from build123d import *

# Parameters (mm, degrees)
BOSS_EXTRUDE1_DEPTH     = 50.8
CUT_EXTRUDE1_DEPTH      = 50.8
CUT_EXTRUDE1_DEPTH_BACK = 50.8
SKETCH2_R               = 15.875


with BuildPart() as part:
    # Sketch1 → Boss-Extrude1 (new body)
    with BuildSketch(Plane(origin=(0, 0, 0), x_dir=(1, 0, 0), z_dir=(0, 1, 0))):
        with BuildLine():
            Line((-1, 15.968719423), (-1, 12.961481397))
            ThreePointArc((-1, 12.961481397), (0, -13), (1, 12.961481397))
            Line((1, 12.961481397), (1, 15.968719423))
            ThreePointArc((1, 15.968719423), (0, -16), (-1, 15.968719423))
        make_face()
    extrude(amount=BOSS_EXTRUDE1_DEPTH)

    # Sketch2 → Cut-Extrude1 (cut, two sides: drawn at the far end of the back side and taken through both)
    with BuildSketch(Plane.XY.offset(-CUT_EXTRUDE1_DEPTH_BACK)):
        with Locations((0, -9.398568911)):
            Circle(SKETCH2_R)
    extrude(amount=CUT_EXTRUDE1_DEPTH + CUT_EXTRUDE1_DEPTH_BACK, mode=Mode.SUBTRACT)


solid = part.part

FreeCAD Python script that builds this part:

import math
import FreeCAD as App
import Part
import Sketcher

V = App.Vector
Q = App.Units.Quantity

doc = App.newDocument("Part")
params = doc.addObject("Spreadsheet::Sheet", "Params")
for row, (alias, value) in enumerate([
    ("sketch1_radius", "16 mm"),
    ("sketch1_radius2", "13 mm"),
    ("pad1_length", "50.8 mm"),
    ("sketch2_diameter", "31.75 mm"),
], start=1):
    params.set(f"A{row}", alias)
    params.set(f"B{row}", "=" + value)
    params.setAlias(f"B{row}", alias)

body = doc.addObject("PartDesign::Body", "Body")

sketch1 = doc.addObject("Sketcher::SketchObject", "Sketch")
body.addObject(sketch1)
sketch1.AttachmentSupport = (doc.XZ_Plane, [""])
sketch1.MapMode = "FlatFace"
sketch1.addGeometry(Part.LineSegment(V(-1, -13, 0), V(-1, -16, 0)), False)
sketch1.addGeometry(Part.ArcOfCircle(Part.Circle(V(0, 0, 0), V(0, 0, 1), 16), math.radians(-86), math.radians(266)), False)
sketch1.addGeometry(Part.LineSegment(V(1, -16, 0), V(1, -13, 0)), False)
sketch1.addGeometry(Part.ArcOfCircle(Part.Circle(V(0, 0, 0), V(0, 0, 1), 13), math.radians(-86), math.radians(266)), False)
sketch1.addConstraint(Sketcher.Constraint("Coincident", 0, 2, 1, 2))
sketch1.addConstraint(Sketcher.Constraint("Coincident", 1, 1, 2, 1))
sketch1.addConstraint(Sketcher.Constraint("Coincident", 2, 2, 3, 1))
sketch1.addConstraint(Sketcher.Constraint("Coincident", 3, 2, 0, 1))
sketch1.addConstraint(Sketcher.Constraint("Vertical", 0))
sketch1.addConstraint(Sketcher.Constraint("Vertical", 2))
sketch1.addConstraint(Sketcher.Constraint("Coincident", 1, 3, -1, 1))
sketch1.addConstraint(Sketcher.Constraint("Coincident", 3, 3, -1, 1))
sketch1.addConstraint(Sketcher.Constraint("Horizontal", 0, 2, 1, 1))
sketch1.addConstraint(Sketcher.Constraint("Radius", 1, Q("16 mm")))
sketch1.addConstraint(Sketcher.Constraint("Radius", 3, Q("13 mm")))
sketch1.addConstraint(Sketcher.Constraint("DistanceX", 0, 2, -1, 1, Q("1 mm")))
sketch1.setExpression("Constraints[9]", "Params.sketch1_radius")
sketch1.setExpression("Constraints[10]", "Params.sketch1_radius2")
pad1 = doc.addObject("PartDesign::Pad", "Pad")
body.addObject(pad1)
pad1.Profile = sketch1
pad1.setExpression("Length", "Params.pad1_length")
pad1.Reversed = True

sketch2 = doc.addObject("Sketcher::SketchObject", "Sketch001")
body.addObject(sketch2)
sketch2.AttachmentSupport = (doc.XY_Plane, [""])
sketch2.MapMode = "FlatFace"
sketch2.addGeometry(Part.Circle(V(0, -9, 0), V(0, 0, 1), 16), False)
sketch2.addConstraint(Sketcher.Constraint("PointOnObject", 0, 3, -2))
sketch2.addConstraint(Sketcher.Constraint("Diameter", 0, Q("31.75 mm")))
sketch2.addConstraint(Sketcher.Constraint("DistanceY", 0, 3, -1, 1, Q("9.398569 mm")))
sketch2.setExpression("Constraints[1]", "Params.sketch2_diameter")
pocket1 = doc.addObject("PartDesign::Pocket", "Pocket")
body.addObject(pocket1)
pocket1.Profile = sketch2
pocket1.Type = "ThroughAll"
pocket1.Midplane = True

doc.recompute()
